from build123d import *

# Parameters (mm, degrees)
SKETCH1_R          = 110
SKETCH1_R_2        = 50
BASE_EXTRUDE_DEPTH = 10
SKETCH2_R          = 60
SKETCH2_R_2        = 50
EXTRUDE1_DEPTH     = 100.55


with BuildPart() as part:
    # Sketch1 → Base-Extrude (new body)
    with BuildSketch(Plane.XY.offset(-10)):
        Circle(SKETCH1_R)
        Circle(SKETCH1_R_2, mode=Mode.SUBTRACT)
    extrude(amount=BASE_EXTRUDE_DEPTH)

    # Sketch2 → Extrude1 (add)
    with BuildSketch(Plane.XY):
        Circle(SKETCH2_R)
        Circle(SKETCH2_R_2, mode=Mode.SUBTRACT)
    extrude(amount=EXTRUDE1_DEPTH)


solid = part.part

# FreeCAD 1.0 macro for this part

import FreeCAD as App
import Part
import Sketcher
from FreeCAD import Vector
Q = App.Units.Quantity

doc = App.newDocument("Part")
body = doc.addObject("PartDesign::Body", "Body")

sketch1 = body.newObject("Sketcher::SketchObject", "Sketch")
sketch1.AttachmentSupport = (doc.getObject("XY_Plane"), [""])
sketch1.MapMode = "FlatFace"
sketch1.AttachmentOffset = App.Placement(Vector(0, 0, -10), App.Rotation())
sketch1.addGeometry([
    Part.Circle(Vector(0, 0, 0), Vector(0, 0, 1), 110),
    Part.Circle(Vector(0, 0, 0), Vector(0, 0, 1), 50),
], False)
sketch1.addConstraint([
    Sketcher.Constraint("Coincident", 0, 3, -1, 1),
    Sketcher.Constraint("Coincident", 1, 3, -1, 1),
    Sketcher.Constraint("Diameter", 0, Q("220 mm")),
    Sketcher.Constraint("Diameter", 1, Q("100 mm")),
])
pad1 = body.newObject("PartDesign::Pad", "Pad")
pad1.Profile = sketch1
pad1.Length = 10

sketch2 = body.newObject("Sketcher::SketchObject", "Sketch001")
sketch2.AttachmentSupport = (doc.getObject("XY_Plane"), [""])
sketch2.MapMode = "FlatFace"
sketch2.addGeometry([
    Part.Circle(Vector(0, 0, 0), Vector(0, 0, 1), 60),
    Part.Circle(Vector(0, 0, 0), Vector(0, 0, 1), 50),
], False)
sketch2.addConstraint([
    Sketcher.Constraint("Coincident", 0, 3, -1, 1),
    Sketcher.Constraint("Coincident", 1, 3, -1, 1),
    Sketcher.Constraint("Diameter", 0, Q("120 mm")),
    Sketcher.Constraint("Diameter", 1, Q("100 mm")),
])
pad2 = body.newObject("PartDesign::Pad", "Pad001")
pad2.Profile = sketch2
pad2.Length = 100.55

doc.recompute()
